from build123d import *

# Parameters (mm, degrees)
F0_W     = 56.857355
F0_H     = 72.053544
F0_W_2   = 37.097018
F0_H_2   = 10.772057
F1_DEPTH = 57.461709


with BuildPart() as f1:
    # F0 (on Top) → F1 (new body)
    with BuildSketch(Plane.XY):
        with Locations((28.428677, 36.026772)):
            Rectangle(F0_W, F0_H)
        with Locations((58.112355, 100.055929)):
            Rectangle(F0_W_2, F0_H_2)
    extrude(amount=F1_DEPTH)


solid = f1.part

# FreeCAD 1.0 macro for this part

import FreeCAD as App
import Part
import Sketcher

doc = App.newDocument("Part")
body = doc.addObject("PartDesign::Body", "Body")
body.AllowCompound = True

sketch1 = body.newObject("Sketcher::SketchObject", "Sketch")
sketch1.AttachmentSupport = (doc.getObject("XY_Plane"), [""])
sketch1.MapMode = "FlatFace"
sketch1.addGeometry([
    Part.LineSegment(App.Vector(0, 72, 0), App.Vector(0, 0, 0)),
    Part.LineSegment(App.Vector(0, 0, 0), App.Vector(57, 0, 0)),
    Part.LineSegment(App.Vector(57, 0, 0), App.Vector(57, 72, 0)),
    Part.LineSegment(App.Vector(57, 72, 0), App.Vector(0, 72, 0)),
    Part.LineSegment(App.Vector(40, 105, 0), App.Vector(40, 95, 0)),
    Part.LineSegment(App.Vector(40, 95, 0), App.Vector(77, 95, 0)),
    Part.LineSegment(App.Vector(77, 95, 0), App.Vector(77, 105, 0)),
    Part.LineSegment(App.Vector(77, 105, 0), App.Vector(40, 105, 0)),
], False)
sketch1.addConstraint([
    Sketcher.Constraint("Coincident", 0, 2, 1, 1),
    Sketcher.Constraint("Coincident", 1, 2, 2, 1),
    Sketcher.Constraint("Coincident", 2, 2, 3, 1),
    Sketcher.Constraint("Coincident", 3, 2, 0, 1),
    Sketcher.Constraint("Coincident", 4, 2, 5, 1),
    Sketcher.Constraint("Coincident", 5, 2, 6, 1),
    Sketcher.Constraint("Coincident", 6, 2, 7, 1),
    Sketcher.Constraint("Coincident", 7, 2, 4, 1),
    Sketcher.Constraint("Vertical", 0),
    Sketcher.Constraint("Horizontal", 1),
    Sketcher.Constraint("Vertical", 2),
    Sketcher.Constraint("Horizontal", 3),
    Sketcher.Constraint("Vertical", 4),
    Sketcher.Constraint("Horizontal", 5),
    Sketcher.Constraint("Vertical", 6),
    Sketcher.Constraint("Horizontal", 7),
    Sketcher.Constraint("Coincident", 0, 2, -1, 1),
    Sketcher.Constraint("DistanceX", 5, 1, 5, 2, 37.097018),
    Sketcher.Constraint("DistanceY", -1, 1, 4, 2, 94.6699),
    Sketcher.Constraint("DistanceX", 1, 1, 1, 2, 56.857355),
    Sketcher.Constraint("DistanceY", 0, 2, 0, 1, 72.053544),
    Sketcher.Constraint("DistanceY", 4, 2, 4, 1, 10.772057),
    Sketcher.Constraint("DistanceX", 4, 2, 2, 2, 17.293509),
])
pad1 = body.newObject("PartDesign::Pad", "Pad")
pad1.Profile = sketch1
pad1.Length = 57.461709

doc.recompute()
